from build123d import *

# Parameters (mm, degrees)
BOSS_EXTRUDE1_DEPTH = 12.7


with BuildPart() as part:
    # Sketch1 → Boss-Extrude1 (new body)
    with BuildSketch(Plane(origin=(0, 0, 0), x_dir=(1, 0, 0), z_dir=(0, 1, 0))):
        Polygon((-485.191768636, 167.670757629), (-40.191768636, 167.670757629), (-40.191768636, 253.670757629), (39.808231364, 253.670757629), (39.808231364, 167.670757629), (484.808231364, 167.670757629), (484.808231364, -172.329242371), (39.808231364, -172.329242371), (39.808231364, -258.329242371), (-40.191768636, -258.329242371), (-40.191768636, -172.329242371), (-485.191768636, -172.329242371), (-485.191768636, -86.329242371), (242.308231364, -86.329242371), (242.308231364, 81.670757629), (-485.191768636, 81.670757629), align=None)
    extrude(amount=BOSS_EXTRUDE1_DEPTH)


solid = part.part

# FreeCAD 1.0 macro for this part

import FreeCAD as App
import Part
import Sketcher
from FreeCAD import Vector


def add_polygon(sketch, points):
    """Adds a closed chain of lines whose ends are joined by coincident constraints."""
    first, n = sketch.GeometryCount, len(points)
    for a, b in zip(points, points[1:] + points[:1]):
        sketch.addGeometry(Part.LineSegment(App.Vector(*a, 0), App.Vector(*b, 0)), False)
    for i in range(n):
        sketch.addConstraint(Sketcher.Constraint("Coincident", first + i, 2, first + (i + 1) % n, 1))

doc = App.newDocument("Part")
body = doc.addObject("PartDesign::Body", "Body")

sketch1 = body.newObject("Sketcher::SketchObject", "Sketch")
sketch1.AttachmentSupport = (doc.getObject("XZ_Plane"), [""])
sketch1.MapMode = "FlatFace"
add_polygon(sketch1, [(-40.191769, -167.670758), (-485.191769, -167.670758), (-485.191769, -81.670758), (242.308231, -81.670758), (242.308231, 86.329242), (-485.191769, 86.329242), (-485.191769, 172.329242), (-40.191769, 172.329242), (-40.191769, 258.329242), (39.808231, 258.329242), (39.808231, 172.329242), (484.808231, 172.329242), (484.808231, -167.670758), (39.808231, -167.670758), (39.808231, -253.670758), (-40.191769, -253.670758)])
sketch1.addConstraint(Sketcher.Constraint("Horizontal", 0))
sketch1.addConstraint(Sketcher.Constraint("Vertical", 1))
sketch1.addConstraint(Sketcher.Constraint("Horizontal", 2))
sketch1.addConstraint(Sketcher.Constraint("Vertical", 3))
sketch1.addConstraint(Sketcher.Constraint("Horizontal", 4))
sketch1.addConstraint(Sketcher.Constraint("Vertical", 5))
sketch1.addConstraint(Sketcher.Constraint("Horizontal", 6))
sketch1.addConstraint(Sketcher.Constraint("Vertical", 7))
sketch1.addConstraint(Sketcher.Constraint("Horizontal", 8))
sketch1.addConstraint(Sketcher.Constraint("Vertical", 9))
sketch1.addConstraint(Sketcher.Constraint("Horizontal", 10))
sketch1.addConstraint(Sketcher.Constraint("Vertical", 11))
sketch1.addConstraint(Sketcher.Constraint("Horizontal", 12))
sketch1.addConstraint(Sketcher.Constraint("Vertical", 13))
sketch1.addConstraint(Sketcher.Constraint("Horizontal", 14))
sketch1.addConstraint(Sketcher.Constraint("Vertical", 15))
sketch1.addConstraint(Sketcher.Constraint("Horizontal", 6, 2, 9, 2))
sketch1.addConstraint(Sketcher.Constraint("Horizontal", 0, 2, 11, 2))
sketch1.addConstraint(Sketcher.Constraint("Vertical", 1, 2, 4, 2))
sketch1.addConstraint(Sketcher.Constraint("Vertical", 9, 2, 12, 2))
sketch1.addConstraint(Sketcher.Constraint("Vertical", 7, 2, 14, 2))
sketch1.addConstraint(Sketcher.Constraint("Equal", 6, 10))
sketch1.addConstraint(Sketcher.Constraint("Equal", 1, 5))
sketch1.addConstraint(Sketcher.Constraint("Equal", 5, 7))
sketch1.addConstraint(Sketcher.Constraint("Equal", 9, 13))
sketch1.addConstraint(Sketcher.Constraint("DistanceX", 0, 2, 0, 1, 445.0))
sketch1.addConstraint(Sketcher.Constraint("DistanceX", 8, 1, 8, 2, 80.0))
sketch1.addConstraint(Sketcher.Constraint("DistanceY", 1, 1, 1, 2, 86.0))
sketch1.addConstraint(Sketcher.Constraint("DistanceY", 3, 1, 3, 2, 168.0))
sketch1.addConstraint(Sketcher.Constraint("DistanceX", 2, 1, 2, 2, 727.5))
sketch1.addConstraint(Sketcher.Constraint("DistanceX", 0, 2, -1, 1, 485.191769))
sketch1.addConstraint(Sketcher.Constraint("DistanceY", 0, 2, -1, 1, 167.670758))
pad1 = body.newObject("PartDesign::Pad", "Pad")
pad1.Profile = sketch1
pad1.Length = 12.7
pad1.Reversed = True

doc.recompute()
